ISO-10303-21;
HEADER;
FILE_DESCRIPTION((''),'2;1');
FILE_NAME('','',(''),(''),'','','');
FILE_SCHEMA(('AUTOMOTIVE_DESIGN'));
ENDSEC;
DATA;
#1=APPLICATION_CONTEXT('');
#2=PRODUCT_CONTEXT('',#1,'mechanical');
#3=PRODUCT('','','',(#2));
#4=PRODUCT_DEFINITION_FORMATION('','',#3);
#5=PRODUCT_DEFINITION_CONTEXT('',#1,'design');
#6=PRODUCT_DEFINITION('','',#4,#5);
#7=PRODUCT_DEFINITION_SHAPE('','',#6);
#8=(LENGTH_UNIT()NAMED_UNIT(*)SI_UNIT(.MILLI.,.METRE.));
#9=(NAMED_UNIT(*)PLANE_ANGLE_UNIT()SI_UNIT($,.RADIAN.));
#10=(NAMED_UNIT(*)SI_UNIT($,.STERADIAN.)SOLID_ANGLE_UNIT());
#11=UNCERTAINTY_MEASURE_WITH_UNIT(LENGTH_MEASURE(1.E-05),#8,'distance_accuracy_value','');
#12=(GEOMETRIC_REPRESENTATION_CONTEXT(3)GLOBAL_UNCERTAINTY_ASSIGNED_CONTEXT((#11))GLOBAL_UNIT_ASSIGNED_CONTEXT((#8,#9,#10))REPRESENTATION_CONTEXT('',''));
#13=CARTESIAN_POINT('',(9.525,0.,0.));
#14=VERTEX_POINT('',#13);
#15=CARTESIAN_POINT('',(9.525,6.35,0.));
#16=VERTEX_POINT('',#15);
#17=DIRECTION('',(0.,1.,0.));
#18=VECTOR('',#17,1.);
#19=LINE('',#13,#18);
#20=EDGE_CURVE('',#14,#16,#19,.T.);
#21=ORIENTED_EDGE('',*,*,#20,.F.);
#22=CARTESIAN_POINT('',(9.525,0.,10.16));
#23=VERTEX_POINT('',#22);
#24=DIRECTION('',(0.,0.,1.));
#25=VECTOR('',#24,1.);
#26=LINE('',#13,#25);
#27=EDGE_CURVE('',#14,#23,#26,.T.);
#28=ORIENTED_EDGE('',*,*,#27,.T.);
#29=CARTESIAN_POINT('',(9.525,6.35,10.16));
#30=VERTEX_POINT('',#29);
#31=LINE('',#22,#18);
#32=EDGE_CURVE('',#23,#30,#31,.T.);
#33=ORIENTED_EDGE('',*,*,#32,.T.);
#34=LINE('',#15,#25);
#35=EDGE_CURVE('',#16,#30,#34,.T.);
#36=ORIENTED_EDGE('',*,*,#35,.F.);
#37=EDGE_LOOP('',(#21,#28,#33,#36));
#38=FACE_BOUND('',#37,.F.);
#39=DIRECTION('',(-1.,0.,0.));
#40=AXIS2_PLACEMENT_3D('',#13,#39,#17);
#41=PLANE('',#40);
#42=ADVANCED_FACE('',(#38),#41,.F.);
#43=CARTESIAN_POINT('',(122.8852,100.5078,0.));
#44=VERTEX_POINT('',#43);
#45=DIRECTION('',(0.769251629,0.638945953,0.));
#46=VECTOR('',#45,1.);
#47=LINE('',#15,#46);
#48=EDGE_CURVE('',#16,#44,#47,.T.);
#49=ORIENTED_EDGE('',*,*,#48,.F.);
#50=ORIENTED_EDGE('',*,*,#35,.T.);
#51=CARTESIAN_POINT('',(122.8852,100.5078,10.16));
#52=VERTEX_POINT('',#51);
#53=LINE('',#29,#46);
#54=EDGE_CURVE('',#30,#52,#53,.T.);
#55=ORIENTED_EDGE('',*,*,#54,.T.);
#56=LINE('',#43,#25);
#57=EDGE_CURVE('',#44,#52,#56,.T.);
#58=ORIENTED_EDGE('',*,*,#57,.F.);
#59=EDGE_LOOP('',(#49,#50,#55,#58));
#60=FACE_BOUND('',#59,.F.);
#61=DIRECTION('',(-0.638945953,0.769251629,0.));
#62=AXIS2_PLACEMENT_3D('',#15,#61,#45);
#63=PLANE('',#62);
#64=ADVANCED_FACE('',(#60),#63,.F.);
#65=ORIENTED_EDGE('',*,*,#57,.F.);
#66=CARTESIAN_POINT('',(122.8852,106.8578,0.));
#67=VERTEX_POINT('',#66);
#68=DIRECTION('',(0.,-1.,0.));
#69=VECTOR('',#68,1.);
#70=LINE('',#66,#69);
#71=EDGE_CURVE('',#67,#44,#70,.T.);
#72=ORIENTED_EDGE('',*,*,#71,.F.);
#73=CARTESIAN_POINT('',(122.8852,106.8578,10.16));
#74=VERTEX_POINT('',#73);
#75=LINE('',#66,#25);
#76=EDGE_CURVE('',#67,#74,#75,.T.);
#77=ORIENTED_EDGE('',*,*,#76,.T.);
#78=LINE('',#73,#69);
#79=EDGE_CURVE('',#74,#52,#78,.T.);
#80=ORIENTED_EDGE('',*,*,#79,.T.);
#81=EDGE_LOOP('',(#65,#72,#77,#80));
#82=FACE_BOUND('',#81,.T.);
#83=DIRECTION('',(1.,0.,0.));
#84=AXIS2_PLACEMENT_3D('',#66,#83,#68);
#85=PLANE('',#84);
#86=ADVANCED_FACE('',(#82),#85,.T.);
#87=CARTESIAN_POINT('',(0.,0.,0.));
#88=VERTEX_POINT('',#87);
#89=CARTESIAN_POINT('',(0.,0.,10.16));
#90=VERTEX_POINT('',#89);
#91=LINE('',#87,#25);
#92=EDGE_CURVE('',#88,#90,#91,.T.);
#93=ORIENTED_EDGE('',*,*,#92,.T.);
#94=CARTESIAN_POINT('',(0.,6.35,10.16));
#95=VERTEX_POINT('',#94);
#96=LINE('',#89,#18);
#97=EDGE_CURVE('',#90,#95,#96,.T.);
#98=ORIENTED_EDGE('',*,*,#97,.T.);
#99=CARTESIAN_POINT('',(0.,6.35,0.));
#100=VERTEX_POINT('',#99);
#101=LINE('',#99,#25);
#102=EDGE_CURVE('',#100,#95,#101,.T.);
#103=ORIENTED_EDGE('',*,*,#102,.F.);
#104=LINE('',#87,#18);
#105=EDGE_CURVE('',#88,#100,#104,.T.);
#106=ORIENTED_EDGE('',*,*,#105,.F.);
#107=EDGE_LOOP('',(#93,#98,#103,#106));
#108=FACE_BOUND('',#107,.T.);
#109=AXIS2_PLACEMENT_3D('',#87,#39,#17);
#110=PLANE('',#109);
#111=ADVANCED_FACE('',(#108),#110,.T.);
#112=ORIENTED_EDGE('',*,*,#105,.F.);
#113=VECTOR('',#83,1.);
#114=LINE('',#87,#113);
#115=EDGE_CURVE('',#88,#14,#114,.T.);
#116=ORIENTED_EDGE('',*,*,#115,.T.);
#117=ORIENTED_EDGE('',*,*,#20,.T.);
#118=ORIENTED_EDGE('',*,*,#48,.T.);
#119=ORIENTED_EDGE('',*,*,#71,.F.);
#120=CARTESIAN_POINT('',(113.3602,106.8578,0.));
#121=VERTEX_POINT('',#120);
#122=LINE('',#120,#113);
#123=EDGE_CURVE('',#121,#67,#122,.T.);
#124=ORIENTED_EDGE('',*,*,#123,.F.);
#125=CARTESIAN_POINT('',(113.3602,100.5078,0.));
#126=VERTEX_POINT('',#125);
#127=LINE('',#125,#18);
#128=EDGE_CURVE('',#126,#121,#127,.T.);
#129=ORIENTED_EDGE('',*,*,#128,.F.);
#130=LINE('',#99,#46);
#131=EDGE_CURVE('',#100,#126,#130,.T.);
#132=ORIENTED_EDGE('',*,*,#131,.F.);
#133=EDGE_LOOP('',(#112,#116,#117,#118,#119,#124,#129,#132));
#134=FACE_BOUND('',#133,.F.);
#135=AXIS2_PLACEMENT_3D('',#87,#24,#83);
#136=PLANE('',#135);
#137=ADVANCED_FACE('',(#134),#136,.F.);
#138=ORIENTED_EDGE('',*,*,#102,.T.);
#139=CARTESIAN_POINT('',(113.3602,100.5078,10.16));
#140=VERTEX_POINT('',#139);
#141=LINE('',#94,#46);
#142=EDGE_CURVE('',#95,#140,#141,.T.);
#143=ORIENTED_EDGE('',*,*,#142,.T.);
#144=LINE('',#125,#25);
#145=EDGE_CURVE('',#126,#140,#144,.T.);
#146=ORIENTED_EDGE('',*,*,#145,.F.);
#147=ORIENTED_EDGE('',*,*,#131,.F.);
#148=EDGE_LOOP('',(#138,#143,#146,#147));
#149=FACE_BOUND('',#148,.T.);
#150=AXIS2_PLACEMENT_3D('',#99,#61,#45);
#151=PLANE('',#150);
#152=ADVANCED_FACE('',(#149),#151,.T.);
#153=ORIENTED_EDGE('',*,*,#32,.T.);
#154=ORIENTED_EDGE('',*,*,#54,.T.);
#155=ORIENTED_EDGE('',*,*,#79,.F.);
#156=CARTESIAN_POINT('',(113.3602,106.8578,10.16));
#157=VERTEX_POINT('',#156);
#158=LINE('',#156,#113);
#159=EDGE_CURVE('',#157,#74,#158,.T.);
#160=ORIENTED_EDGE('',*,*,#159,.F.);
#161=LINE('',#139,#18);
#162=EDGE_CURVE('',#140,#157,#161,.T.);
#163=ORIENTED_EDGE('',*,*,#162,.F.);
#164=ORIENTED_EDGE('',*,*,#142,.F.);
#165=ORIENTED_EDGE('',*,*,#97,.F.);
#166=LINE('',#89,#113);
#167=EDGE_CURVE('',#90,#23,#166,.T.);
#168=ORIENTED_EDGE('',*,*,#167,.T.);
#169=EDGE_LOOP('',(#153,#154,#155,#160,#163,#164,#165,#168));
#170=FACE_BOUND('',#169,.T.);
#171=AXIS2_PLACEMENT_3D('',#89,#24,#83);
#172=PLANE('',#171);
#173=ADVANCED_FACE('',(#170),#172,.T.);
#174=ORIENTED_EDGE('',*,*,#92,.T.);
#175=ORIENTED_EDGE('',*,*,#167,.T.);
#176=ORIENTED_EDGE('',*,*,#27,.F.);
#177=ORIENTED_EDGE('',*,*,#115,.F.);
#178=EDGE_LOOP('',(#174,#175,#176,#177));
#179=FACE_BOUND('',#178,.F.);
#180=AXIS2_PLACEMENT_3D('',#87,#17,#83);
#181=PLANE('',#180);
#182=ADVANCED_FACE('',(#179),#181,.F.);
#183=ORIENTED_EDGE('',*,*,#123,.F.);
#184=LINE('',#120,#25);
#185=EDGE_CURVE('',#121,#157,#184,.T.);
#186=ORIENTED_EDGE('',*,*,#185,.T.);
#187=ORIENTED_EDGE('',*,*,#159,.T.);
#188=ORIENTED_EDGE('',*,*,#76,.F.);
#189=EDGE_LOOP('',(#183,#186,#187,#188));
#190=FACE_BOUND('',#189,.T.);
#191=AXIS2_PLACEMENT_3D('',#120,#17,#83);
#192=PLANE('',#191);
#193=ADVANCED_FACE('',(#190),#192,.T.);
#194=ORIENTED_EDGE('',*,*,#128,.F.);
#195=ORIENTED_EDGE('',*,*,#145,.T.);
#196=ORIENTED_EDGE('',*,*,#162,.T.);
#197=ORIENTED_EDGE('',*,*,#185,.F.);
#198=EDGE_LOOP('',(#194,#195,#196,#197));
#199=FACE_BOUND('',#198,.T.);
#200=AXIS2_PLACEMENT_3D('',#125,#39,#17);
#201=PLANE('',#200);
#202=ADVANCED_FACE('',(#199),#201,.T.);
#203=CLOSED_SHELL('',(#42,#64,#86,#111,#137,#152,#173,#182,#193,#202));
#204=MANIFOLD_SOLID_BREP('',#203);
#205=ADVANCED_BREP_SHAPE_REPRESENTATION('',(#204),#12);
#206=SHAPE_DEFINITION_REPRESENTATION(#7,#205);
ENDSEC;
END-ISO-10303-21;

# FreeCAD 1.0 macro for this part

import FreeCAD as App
import Part
import Sketcher

V = App.Vector
Q = App.Units.Quantity


def add_polygon(sketch, points):
    """Adds a closed chain of lines whose ends are joined by coincident constraints."""
    first, n = sketch.GeometryCount, len(points)
    for a, b in zip(points, points[1:] + points[:1]):
        sketch.addGeometry(Part.LineSegment(App.Vector(*a, 0), App.Vector(*b, 0)), False)
    for i in range(n):
        sketch.addConstraint(Sketcher.Constraint("Coincident", first + i, 2, first + (i + 1) % n, 1))

doc = App.newDocument("Part")
params = doc.addObject("Spreadsheet::Sheet", "Params")
for row, (alias, value) in enumerate([
    ("sketch1_height", "0.25 in"),
    ("sketch1_width", "0.375 in"),
    ("pad1_length", "0.4 in"),
], start=1):
    params.set(f"A{row}", alias)
    params.set(f"B{row}", "=" + value)
    params.setAlias(f"B{row}", alias)

body = doc.addObject("PartDesign::Body", "Body")

sketch1 = body.newObject("Sketcher::SketchObject", "Sketch")
sketch1.AttachmentSupport = (doc.getObject("XY_Plane"), [""])
sketch1.MapMode = "FlatFace"
add_polygon(sketch1, [(0, 6), (0, 0), (10, 0), (10, 6), (123, 101), (123, 107), (113, 107), (113, 101)])
sketch1.addConstraint(Sketcher.Constraint("Vertical", 0))
sketch1.addConstraint(Sketcher.Constraint("Horizontal", 1))
sketch1.addConstraint(Sketcher.Constraint("Vertical", 2))
sketch1.addConstraint(Sketcher.Constraint("Vertical", 4))
sketch1.addConstraint(Sketcher.Constraint("Horizontal", 5))
sketch1.addConstraint(Sketcher.Constraint("Vertical", 6))
sketch1.addConstraint(Sketcher.Constraint("Coincident", 0, 2, -1, 1))
sketch1.addConstraint(Sketcher.Constraint("Parallel", 3, 7))
sketch1.addConstraint(Sketcher.Constraint("Horizontal", 3, 2, 6, 2))
sketch1.addConstraint(Sketcher.Constraint("Horizontal", 2, 2, 7, 2))
sketch1.addConstraint(Sketcher.Constraint("Equal", 2, 4))
sketch1.addConstraint(Sketcher.Constraint("DistanceY", 0, 2, 0, 1, Q("0.25 in")))
sketch1.addConstraint(Sketcher.Constraint("DistanceX", 1, 1, 1, 2, Q("0.375 in")))
sketch1.addConstraint(Sketcher.Constraint("DistanceY", 2, 2, 3, 2, Q("3.707 in")))
sketch1.addConstraint(Sketcher.Constraint("DistanceX", 2, 2, 5, 2, Q("4.088 in")))
sketch1.setExpression("Constraints[19]", "Params.sketch1_height")
sketch1.setExpression("Constraints[20]", "Params.sketch1_width")
pad1 = body.newObject("PartDesign::Pad", "Pad")
pad1.Profile = sketch1
pad1.setExpression("Length", "Params.pad1_length")

doc.recompute()
